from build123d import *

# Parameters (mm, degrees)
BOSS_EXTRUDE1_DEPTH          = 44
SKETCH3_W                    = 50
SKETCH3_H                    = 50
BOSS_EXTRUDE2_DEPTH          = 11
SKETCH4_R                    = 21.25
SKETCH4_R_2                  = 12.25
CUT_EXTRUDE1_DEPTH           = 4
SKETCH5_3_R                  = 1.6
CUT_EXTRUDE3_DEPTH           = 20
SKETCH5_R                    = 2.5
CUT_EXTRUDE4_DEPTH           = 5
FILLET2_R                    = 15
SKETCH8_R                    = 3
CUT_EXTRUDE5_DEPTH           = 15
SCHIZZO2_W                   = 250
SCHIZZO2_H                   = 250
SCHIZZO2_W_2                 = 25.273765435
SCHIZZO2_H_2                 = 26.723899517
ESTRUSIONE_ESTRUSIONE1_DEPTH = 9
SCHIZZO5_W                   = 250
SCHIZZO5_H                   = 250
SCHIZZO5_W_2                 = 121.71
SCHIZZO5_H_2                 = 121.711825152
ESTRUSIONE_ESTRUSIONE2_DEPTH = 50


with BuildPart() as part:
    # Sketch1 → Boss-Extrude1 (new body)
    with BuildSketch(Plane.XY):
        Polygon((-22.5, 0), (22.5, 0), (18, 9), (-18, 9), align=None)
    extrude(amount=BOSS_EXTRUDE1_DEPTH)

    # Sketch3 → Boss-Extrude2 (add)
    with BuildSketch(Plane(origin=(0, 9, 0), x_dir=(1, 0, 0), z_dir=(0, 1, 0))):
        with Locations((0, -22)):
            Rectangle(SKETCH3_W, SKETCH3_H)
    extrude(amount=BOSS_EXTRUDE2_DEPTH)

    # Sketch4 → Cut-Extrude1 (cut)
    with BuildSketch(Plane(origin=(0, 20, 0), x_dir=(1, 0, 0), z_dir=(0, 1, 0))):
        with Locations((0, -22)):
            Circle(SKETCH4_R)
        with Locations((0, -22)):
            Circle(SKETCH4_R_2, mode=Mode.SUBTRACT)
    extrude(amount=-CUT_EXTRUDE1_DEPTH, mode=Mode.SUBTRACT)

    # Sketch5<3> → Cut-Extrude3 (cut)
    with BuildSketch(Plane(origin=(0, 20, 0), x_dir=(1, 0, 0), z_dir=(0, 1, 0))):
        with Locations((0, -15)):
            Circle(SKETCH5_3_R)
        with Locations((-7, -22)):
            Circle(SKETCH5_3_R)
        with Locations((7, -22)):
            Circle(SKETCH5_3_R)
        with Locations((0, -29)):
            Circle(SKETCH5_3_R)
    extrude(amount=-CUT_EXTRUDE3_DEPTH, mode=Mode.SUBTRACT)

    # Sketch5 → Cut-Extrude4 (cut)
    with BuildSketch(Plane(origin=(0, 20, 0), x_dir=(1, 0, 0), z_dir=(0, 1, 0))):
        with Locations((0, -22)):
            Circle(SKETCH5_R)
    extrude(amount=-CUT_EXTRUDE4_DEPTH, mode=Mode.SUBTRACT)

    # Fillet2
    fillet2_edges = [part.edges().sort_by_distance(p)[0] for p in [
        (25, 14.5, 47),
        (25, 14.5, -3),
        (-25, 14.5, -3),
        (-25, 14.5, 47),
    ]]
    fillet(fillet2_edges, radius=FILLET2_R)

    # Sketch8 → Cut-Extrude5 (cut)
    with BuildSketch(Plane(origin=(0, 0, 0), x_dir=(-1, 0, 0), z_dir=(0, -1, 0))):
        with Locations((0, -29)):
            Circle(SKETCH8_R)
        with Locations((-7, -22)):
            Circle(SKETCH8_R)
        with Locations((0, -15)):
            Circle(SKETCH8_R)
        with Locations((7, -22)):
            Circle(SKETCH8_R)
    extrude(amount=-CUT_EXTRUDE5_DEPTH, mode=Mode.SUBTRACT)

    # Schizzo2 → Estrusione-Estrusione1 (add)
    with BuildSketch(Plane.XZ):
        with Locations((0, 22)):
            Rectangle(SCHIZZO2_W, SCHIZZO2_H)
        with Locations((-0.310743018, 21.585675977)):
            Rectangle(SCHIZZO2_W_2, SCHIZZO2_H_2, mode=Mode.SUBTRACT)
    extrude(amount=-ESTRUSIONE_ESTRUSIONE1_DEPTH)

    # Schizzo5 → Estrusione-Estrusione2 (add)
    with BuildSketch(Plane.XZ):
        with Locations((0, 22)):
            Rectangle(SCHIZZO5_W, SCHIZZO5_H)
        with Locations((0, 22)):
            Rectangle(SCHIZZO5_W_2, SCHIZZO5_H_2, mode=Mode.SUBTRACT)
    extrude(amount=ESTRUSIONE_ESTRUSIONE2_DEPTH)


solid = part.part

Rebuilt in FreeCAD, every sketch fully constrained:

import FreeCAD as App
import Part
import Sketcher


def edges_at(feature, points):
    """Names of the edges that pass closest to the given points."""
    edges = feature.Shape.Edges
    near = lambda p: min(range(len(edges)), key=lambda i: edges[i].distToShape(Part.Vertex(*p))[0])
    return sorted({f"Edge{near(p) + 1}" for p in points})


def add_polygon(sketch, points):
    """Adds a closed chain of lines whose ends are joined by coincident constraints."""
    first, n = sketch.GeometryCount, len(points)
    for a, b in zip(points, points[1:] + points[:1]):
        sketch.addGeometry(Part.LineSegment(App.Vector(*a, 0), App.Vector(*b, 0)), False)
    for i in range(n):
        sketch.addConstraint(Sketcher.Constraint("Coincident", first + i, 2, first + (i + 1) % n, 1))

doc = App.newDocument("Part")
body = doc.addObject("PartDesign::Body", "Body")

sketch1 = body.newObject("Sketcher::SketchObject", "Sketch")
sketch1.AttachmentSupport = (doc.getObject("XY_Plane"), [""])
sketch1.MapMode = "FlatFace"
add_polygon(sketch1, [(-22, 0), (22, 0), (18, 9), (-18, 9)])
sketch1.addConstraint([
    Sketcher.Constraint("Horizontal", 0),
    Sketcher.Constraint("Horizontal", 2),
    Sketcher.Constraint("Symmetric", 0, 2, 3, 2, -1, 1),
    Sketcher.Constraint("Equal", 1, 3),
    Sketcher.Constraint("DistanceX", 0, 1, 0, 2, 45.0),
    Sketcher.Constraint("DistanceX", 2, 2, 2, 1, 36.0),
    Sketcher.Constraint("DistanceY", -1, 1, 1, 2, 9.0),
])
pad1 = body.newObject("PartDesign::Pad", "Pad")
pad1.Profile = sketch1
pad1.Length = 44

sketch2 = body.newObject("Sketcher::SketchObject", "Sketch001")
sketch2.AttachmentSupport = (doc.getObject("XZ_Plane"), [""])
sketch2.MapMode = "FlatFace"
sketch2.AttachmentOffset = App.Placement(App.Vector(0, 0, -9), App.Rotation())
add_polygon(sketch2, [(-25, -3), (-25, 47), (25, 47), (25, -3)])
sketch2.addConstraint([
    Sketcher.Constraint("Vertical", 0),
    Sketcher.Constraint("Horizontal", 1),
    Sketcher.Constraint("Vertical", 2),
    Sketcher.Constraint("Horizontal", 3),
    Sketcher.Constraint("Equal", 3, 0),
    Sketcher.Constraint("DistanceX", 1, 1, 1, 2, 50.0),
    Sketcher.Constraint("DistanceX", 0, 2, -1, 1, 25.0),
    Sketcher.Constraint("DistanceY", -1, 1, 0, 2, 47.0),
])
pad2 = body.newObject("PartDesign::Pad", "Pad001")
pad2.Profile = sketch2
pad2.Length = 11
pad2.Reversed = True

sketch3 = body.newObject("Sketcher::SketchObject", "Sketch002")
sketch3.AttachmentSupport = (doc.getObject("XZ_Plane"), [""])
sketch3.MapMode = "FlatFace"
sketch3.AttachmentOffset = App.Placement(App.Vector(0, 0, -20), App.Rotation())
sketch3.addGeometry([
    Part.Circle(App.Vector(0, 22, 0), App.Vector(0, 0, 1), 21),
    Part.Circle(App.Vector(0, 22, 0), App.Vector(0, 0, 1), 12),
], False)
sketch3.addConstraint([
    Sketcher.Constraint("Coincident", 1, 3, 0, 3),
    Sketcher.Constraint("PointOnObject", 0, 3, -2),
    Sketcher.Constraint("Diameter", 0, 42.5),
    Sketcher.Constraint("Diameter", 1, 24.5),
    Sketcher.Constraint("DistanceY", -1, 1, 0, 3, 22.0),
])
pocket1 = body.newObject("PartDesign::Pocket", "Pocket")
pocket1.Profile = sketch3
pocket1.Length = 4
pocket1.Reversed = True

sketch4 = body.newObject("Sketcher::SketchObject", "Sketch003")
sketch4.AttachmentSupport = (doc.getObject("XZ_Plane"), [""])
sketch4.MapMode = "FlatFace"
sketch4.AttachmentOffset = App.Placement(App.Vector(0, 0, -20), App.Rotation())
sketch4.addGeometry([
    Part.Circle(App.Vector(0, 15, 0), App.Vector(0, 0, 1), 1.6),
    Part.Circle(App.Vector(-7, 22, 0), App.Vector(0, 0, 1), 1.6),
    Part.Circle(App.Vector(7, 22, 0), App.Vector(0, 0, 1), 1.6),
    Part.Circle(App.Vector(0, 29, 0), App.Vector(0, 0, 1), 1.6),
], False)
sketch4.addConstraint([
    Sketcher.Constraint("Equal", 0, 1),
    Sketcher.Constraint("Equal", 1, 2),
    Sketcher.Constraint("Equal", 2, 3),
    Sketcher.Constraint("Symmetric", 1, 3, 2, 3, -2),
    Sketcher.Constraint("PointOnObject", 0, 3, -2),
    Sketcher.Constraint("PointOnObject", 3, 3, -2),
    Sketcher.Constraint("Diameter", 0, 3.2),
    Sketcher.Constraint("DistanceY", -1, 1, 0, 3, 15.0),
    Sketcher.Constraint("DistanceX", 1, 3, -1, 1, 7.0),
    Sketcher.Constraint("DistanceY", -1, 1, 1, 3, 22.0),
    Sketcher.Constraint("DistanceY", -1, 1, 3, 3, 29.0),
])
pocket2 = body.newObject("PartDesign::Pocket", "Pocket001")
pocket2.Profile = sketch4
pocket2.Length = 20
pocket2.Reversed = True

sketch5 = body.newObject("Sketcher::SketchObject", "Sketch004")
sketch5.AttachmentSupport = (doc.getObject("XZ_Plane"), [""])
sketch5.MapMode = "FlatFace"
sketch5.AttachmentOffset = App.Placement(App.Vector(0, 0, -20), App.Rotation())
sketch5.addGeometry(Part.Circle(App.Vector(0, 22, 0), App.Vector(0, 0, 1), 2.5), False)
sketch5.addConstraint([
    Sketcher.Constraint("PointOnObject", 0, 3, -2),
    Sketcher.Constraint("Diameter", 0, 5.0),
    Sketcher.Constraint("DistanceY", -1, 1, 0, 3, 22.0),
])
pocket3 = body.newObject("PartDesign::Pocket", "Pocket002")
pocket3.Profile = sketch5
pocket3.Length = 5
pocket3.Reversed = True
doc.recompute()

fillet = body.newObject("PartDesign::Fillet", "Fillet")
fillet.Base = (pocket3, edges_at(pocket3, [
    (25, 14.5, 47),
    (25, 14.5, -3),
    (-25, 14.5, -3),
    (-25, 14.5, 47),
]))
fillet.Radius = 15

sketch6 = body.newObject("Sketcher::SketchObject", "Sketch005")
sketch6.AttachmentSupport = (doc.getObject("XZ_Plane"), [""])
sketch6.MapMode = "FlatFace"
sketch6.addGeometry([
    Part.Circle(App.Vector(0, 29, 0), App.Vector(0, 0, 1), 3),
    Part.Circle(App.Vector(7, 22, 0), App.Vector(0, 0, 1), 3),
    Part.Circle(App.Vector(0, 15, 0), App.Vector(0, 0, 1), 3),
    Part.Circle(App.Vector(-7, 22, 0), App.Vector(0, 0, 1), 3),
], False)
sketch6.addConstraint([
    Sketcher.Constraint("Equal", 0, 1),
    Sketcher.Constraint("Equal", 1, 2),
    Sketcher.Constraint("Equal", 2, 3),
    Sketcher.Constraint("Symmetric", 1, 3, 3, 3, -2),
    Sketcher.Constraint("PointOnObject", 0, 3, -2),
    Sketcher.Constraint("PointOnObject", 2, 3, -2),
    Sketcher.Constraint("Diameter", 0, 6.0),
    Sketcher.Constraint("DistanceY", -1, 1, 0, 3, 29.0),
    Sketcher.Constraint("DistanceX", -1, 1, 1, 3, 7.0),
    Sketcher.Constraint("DistanceY", -1, 1, 1, 3, 22.0),
    Sketcher.Constraint("DistanceY", -1, 1, 2, 3, 15.0),
])
pocket4 = body.newObject("PartDesign::Pocket", "Pocket003")
pocket4.Profile = sketch6
pocket4.Length = 15

sketch7 = body.newObject("Sketcher::SketchObject", "Sketch006")
sketch7.AttachmentSupport = (doc.getObject("XZ_Plane"), [""])
sketch7.MapMode = "FlatFace"
add_polygon(sketch7, [(-125, 147), (-125, -103), (125, -103), (125, 147)])
add_polygon(sketch7, [(12, 8), (-13, 8), (-13, 35), (12, 35)])
sketch7.addConstraint([
    Sketcher.Constraint("Vertical", 0),
    Sketcher.Constraint("Horizontal", 1),
    Sketcher.Constraint("Vertical", 2),
    Sketcher.Constraint("Horizontal", 3),
    Sketcher.Constraint("Horizontal", 4),
    Sketcher.Constraint("Vertical", 5),
    Sketcher.Constraint("Horizontal", 6),
    Sketcher.Constraint("Vertical", 7),
    Sketcher.Constraint("Equal", 3, 0),
    Sketcher.Constraint("DistanceX", 1, 1, 1, 2, 250.0),
    Sketcher.Constraint("DistanceX", 0, 2, -1, 1, 125.0),
    Sketcher.Constraint("DistanceY", 0, 2, -1, 1, 103.0),
    Sketcher.Constraint("DistanceY", 5, 1, 5, 2, 26.7239),
    Sketcher.Constraint("DistanceX", 4, 2, 4, 1, 25.273765),
    Sketcher.Constraint("DistanceX", -1, 1, 6, 2, 12.32614),
    Sketcher.Constraint("DistanceY", -1, 1, 4, 2, 8.223726),
])
pad3 = body.newObject("PartDesign::Pad", "Pad002")
pad3.Profile = sketch7
pad3.Length = 9
pad3.Reversed = True

sketch8 = body.newObject("Sketcher::SketchObject", "Sketch007")
sketch8.AttachmentSupport = (doc.getObject("XZ_Plane"), [""])
sketch8.MapMode = "FlatFace"
add_polygon(sketch8, [(-125, 147), (-125, -103), (125, -103), (125, 147)])
add_polygon(sketch8, [(61, -39), (-61, -39), (-61, 83), (61, 83)])
sketch8.addConstraint([
    Sketcher.Constraint("Vertical", 0),
    Sketcher.Constraint("Horizontal", 1),
    Sketcher.Constraint("Vertical", 2),
    Sketcher.Constraint("Horizontal", 3),
    Sketcher.Constraint("Horizontal", 4),
    Sketcher.Constraint("Vertical", 5),
    Sketcher.Constraint("Horizontal", 6),
    Sketcher.Constraint("Vertical", 7),
    Sketcher.Constraint("Equal", 3, 0),
    Sketcher.Constraint("DistanceX", 1, 1, 1, 2, 250.0),
    Sketcher.Constraint("DistanceX", 0, 2, -1, 1, 125.0),
    Sketcher.Constraint("DistanceY", 0, 2, -1, 1, 103.0),
    Sketcher.Constraint("DistanceX", 4, 2, 4, 1, 121.71),
    Sketcher.Constraint("DistanceX", 4, 2, -1, 1, 60.855),
    Sketcher.Constraint("DistanceY", 5, 1, 5, 2, 121.711825),
    Sketcher.Constraint("DistanceY", 4, 2, -1, 1, 38.855913),
])
pad4 = body.newObject("PartDesign::Pad", "Pad003")
pad4.Profile = sketch8
pad4.Length = 50

doc.recompute()
